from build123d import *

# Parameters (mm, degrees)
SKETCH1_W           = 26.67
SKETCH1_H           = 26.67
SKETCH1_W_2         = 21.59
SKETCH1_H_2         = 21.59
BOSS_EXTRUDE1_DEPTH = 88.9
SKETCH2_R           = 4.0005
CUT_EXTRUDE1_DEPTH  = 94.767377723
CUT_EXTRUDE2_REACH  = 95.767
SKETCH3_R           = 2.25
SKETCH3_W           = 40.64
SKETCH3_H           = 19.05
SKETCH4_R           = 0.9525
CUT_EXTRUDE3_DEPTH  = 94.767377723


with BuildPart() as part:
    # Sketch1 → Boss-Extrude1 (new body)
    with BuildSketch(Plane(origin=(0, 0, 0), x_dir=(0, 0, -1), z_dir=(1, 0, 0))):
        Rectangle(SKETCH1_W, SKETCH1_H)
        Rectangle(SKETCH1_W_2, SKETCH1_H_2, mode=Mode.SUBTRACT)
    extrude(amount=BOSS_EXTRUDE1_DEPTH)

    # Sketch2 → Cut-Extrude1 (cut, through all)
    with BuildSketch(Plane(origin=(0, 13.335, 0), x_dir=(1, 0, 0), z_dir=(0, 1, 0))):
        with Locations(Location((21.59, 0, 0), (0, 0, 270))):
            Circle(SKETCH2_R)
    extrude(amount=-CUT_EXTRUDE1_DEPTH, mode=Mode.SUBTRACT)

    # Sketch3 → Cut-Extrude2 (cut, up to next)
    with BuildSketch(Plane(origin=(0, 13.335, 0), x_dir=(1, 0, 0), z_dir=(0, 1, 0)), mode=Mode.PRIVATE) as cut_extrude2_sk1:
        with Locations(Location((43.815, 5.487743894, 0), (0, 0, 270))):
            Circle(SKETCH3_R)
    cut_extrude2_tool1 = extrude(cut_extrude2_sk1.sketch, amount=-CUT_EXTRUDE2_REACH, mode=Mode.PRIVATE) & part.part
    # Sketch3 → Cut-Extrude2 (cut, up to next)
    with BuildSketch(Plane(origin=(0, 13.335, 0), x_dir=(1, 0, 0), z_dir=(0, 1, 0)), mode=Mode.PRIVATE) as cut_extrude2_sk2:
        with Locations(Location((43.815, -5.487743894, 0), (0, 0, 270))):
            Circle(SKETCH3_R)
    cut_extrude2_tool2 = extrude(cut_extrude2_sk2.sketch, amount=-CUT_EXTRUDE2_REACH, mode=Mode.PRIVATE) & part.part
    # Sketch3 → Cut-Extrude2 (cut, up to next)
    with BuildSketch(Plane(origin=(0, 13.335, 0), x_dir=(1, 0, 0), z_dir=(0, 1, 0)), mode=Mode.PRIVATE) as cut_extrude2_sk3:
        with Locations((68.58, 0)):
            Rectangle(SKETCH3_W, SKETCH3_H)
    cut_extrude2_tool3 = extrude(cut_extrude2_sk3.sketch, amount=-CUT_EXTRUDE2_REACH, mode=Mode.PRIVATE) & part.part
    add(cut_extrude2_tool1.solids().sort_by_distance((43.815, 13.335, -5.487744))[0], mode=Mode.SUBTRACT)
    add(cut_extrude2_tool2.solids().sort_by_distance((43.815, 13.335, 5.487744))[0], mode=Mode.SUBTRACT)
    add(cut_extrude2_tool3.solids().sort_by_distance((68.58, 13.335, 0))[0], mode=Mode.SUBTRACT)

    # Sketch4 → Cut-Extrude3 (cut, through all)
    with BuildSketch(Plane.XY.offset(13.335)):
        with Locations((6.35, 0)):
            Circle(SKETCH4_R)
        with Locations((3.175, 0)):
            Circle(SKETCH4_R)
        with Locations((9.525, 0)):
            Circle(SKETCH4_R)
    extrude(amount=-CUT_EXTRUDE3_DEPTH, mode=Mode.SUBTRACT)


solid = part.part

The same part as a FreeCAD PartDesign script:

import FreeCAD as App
import Part
import Sketcher
Q = App.Units.Quantity

doc = App.newDocument("Part")
body = doc.addObject("PartDesign::Body", "Body")

# Sketch on YZ plane
sketch1 = body.newObject("Sketcher::SketchObject", "Sketch")
sketch1.AttachmentSupport = (doc.getObject("YZ_Plane"), [""])
sketch1.MapMode = "FlatFace"
sketch1.addGeometry(Part.LineSegment(App.Vector(13, 13, 0), App.Vector(-13, 13, 0)), False)
sketch1.addGeometry(Part.LineSegment(App.Vector(-13, 13, 0), App.Vector(-13, -13, 0)), False)
sketch1.addGeometry(Part.LineSegment(App.Vector(-13, -13, 0), App.Vector(13, -13, 0)), False)
sketch1.addGeometry(Part.LineSegment(App.Vector(13, -13, 0), App.Vector(13, 13, 0)), False)
sketch1.addGeometry(Part.LineSegment(App.Vector(-11, -11, 0), App.Vector(-11, 11, 0)), False)
sketch1.addGeometry(Part.LineSegment(App.Vector(-11, 11, 0), App.Vector(11, 11, 0)), False)
sketch1.addGeometry(Part.LineSegment(App.Vector(11, 11, 0), App.Vector(11, -11, 0)), False)
sketch1.addGeometry(Part.LineSegment(App.Vector(11, -11, 0), App.Vector(-11, -11, 0)), False)
sketch1.addConstraint(Sketcher.Constraint("Coincident", 0, 2, 1, 1))
sketch1.addConstraint(Sketcher.Constraint("Coincident", 1, 2, 2, 1))
sketch1.addConstraint(Sketcher.Constraint("Coincident", 2, 2, 3, 1))
sketch1.addConstraint(Sketcher.Constraint("Coincident", 3, 2, 0, 1))
sketch1.addConstraint(Sketcher.Constraint("Coincident", 4, 2, 5, 1))
sketch1.addConstraint(Sketcher.Constraint("Coincident", 5, 2, 6, 1))
sketch1.addConstraint(Sketcher.Constraint("Coincident", 6, 2, 7, 1))
sketch1.addConstraint(Sketcher.Constraint("Coincident", 7, 2, 4, 1))
sketch1.addConstraint(Sketcher.Constraint("Horizontal", 0))
sketch1.addConstraint(Sketcher.Constraint("Vertical", 1))
sketch1.addConstraint(Sketcher.Constraint("Horizontal", 2))
sketch1.addConstraint(Sketcher.Constraint("Vertical", 3))
sketch1.addConstraint(Sketcher.Constraint("Vertical", 4))
sketch1.addConstraint(Sketcher.Constraint("Horizontal", 5))
sketch1.addConstraint(Sketcher.Constraint("Vertical", 6))
sketch1.addConstraint(Sketcher.Constraint("Horizontal", 7))
sketch1.addConstraint(Sketcher.Constraint("Symmetric", 0, 2, 2, 2, -1, 1))
sketch1.addConstraint(Sketcher.Constraint("Symmetric", 4, 2, 6, 2, -1, 1))
sketch1.addConstraint(Sketcher.Constraint("Equal", 2, 1))
sketch1.addConstraint(Sketcher.Constraint("Equal", 7, 4))
sketch1.addConstraint(Sketcher.Constraint("DistanceX", 0, 2, 0, 1, Q("1.05 in")))
sketch1.addConstraint(Sketcher.Constraint("DistanceX", 5, 1, 5, 2, Q("0.85 in")))
pad1 = body.newObject("PartDesign::Pad", "Pad")
pad1.Profile = sketch1
pad1.Length = Q("3.5 in")

# Sketch on XZ plane
sketch2 = body.newObject("Sketcher::SketchObject", "Sketch001")
sketch2.AttachmentSupport = (doc.getObject("XZ_Plane"), [""])
sketch2.MapMode = "FlatFace"
sketch2.AttachmentOffset = App.Placement(App.Vector(0, 0, -0.525 * 25.4), App.Rotation())
sketch2.addGeometry(Part.Circle(App.Vector(21.6, 0, 0), App.Vector(0, 0, 1), 4), False)
sketch2.addConstraint(Sketcher.Constraint("PointOnObject", 0, 3, -1))
sketch2.addConstraint(Sketcher.Constraint("Diameter", 0, Q("0.315 in")))
sketch2.addConstraint(Sketcher.Constraint("DistanceX", -1, 1, 0, 3, Q("0.85 in")))
pocket1 = body.newObject("PartDesign::Pocket", "Pocket")
pocket1.Profile = sketch2
pocket1.Type = "ThroughAll"
pocket1.Reversed = True

# Sketch on XZ plane
sketch3 = body.newObject("Sketcher::SketchObject", "Sketch002")
sketch3.AttachmentSupport = (doc.getObject("XZ_Plane"), [""])
sketch3.MapMode = "FlatFace"
sketch3.AttachmentOffset = App.Placement(App.Vector(0, 0, -0.525 * 25.4), App.Rotation())
sketch3.addGeometry(Part.Circle(App.Vector(43.8, -5.5, 0), App.Vector(0, 0, 1), 2.2), False)
sketch3.addConstraint(Sketcher.Constraint("Diameter", 0, 4.5))
sketch3.addConstraint(Sketcher.Constraint("DistanceX", -1, 1, 0, 3, Q("1.725 in")))
sketch3.addConstraint(Sketcher.Constraint("DistanceY", 0, 3, -1, 1, 5.487744))
pocket2 = body.newObject("PartDesign::Pocket", "Pocket001")
pocket2.Profile = sketch3
pocket2.Type = "UpToFirst"
pocket2.Reversed = True

# Sketch on XZ plane
sketch4 = body.newObject("Sketcher::SketchObject", "Sketch003")
sketch4.AttachmentSupport = (doc.getObject("XZ_Plane"), [""])
sketch4.MapMode = "FlatFace"
sketch4.AttachmentOffset = App.Placement(App.Vector(0, 0, -0.525 * 25.4), App.Rotation())
sketch4.addGeometry(Part.Circle(App.Vector(43.8, 5.5, 0), App.Vector(0, 0, 1), 2.2), False)
sketch4.addConstraint(Sketcher.Constraint("Diameter", 0, 4.5))
sketch4.addConstraint(Sketcher.Constraint("DistanceX", -1, 1, 0, 3, Q("1.725 in")))
sketch4.addConstraint(Sketcher.Constraint("DistanceY", -1, 1, 0, 3, 5.487744))
pocket3 = body.newObject("PartDesign::Pocket", "Pocket002")
pocket3.Profile = sketch4
pocket3.Type = "UpToFirst"
pocket3.Reversed = True

# Sketch on XZ plane
sketch5 = body.newObject("Sketcher::SketchObject", "Sketch004")
sketch5.AttachmentSupport = (doc.getObject("XZ_Plane"), [""])
sketch5.MapMode = "FlatFace"
sketch5.AttachmentOffset = App.Placement(App.Vector(0, 0, -0.525 * 25.4), App.Rotation())
sketch5.addGeometry(Part.LineSegment(App.Vector(48, -10, 0), App.Vector(48, 10, 0)), False)
sketch5.addGeometry(Part.LineSegment(App.Vector(48, 10, 0), App.Vector(89, 10, 0)), False)
sketch5.addGeometry(Part.LineSegment(App.Vector(89, 10, 0), App.Vector(89, -10, 0)), False)
sketch5.addGeometry(Part.LineSegment(App.Vector(89, -10, 0), App.Vector(48, -10, 0)), False)
sketch5.addConstraint(Sketcher.Constraint("Coincident", 0, 2, 1, 1))
sketch5.addConstraint(Sketcher.Constraint("Coincident", 1, 2, 2, 1))
sketch5.addConstraint(Sketcher.Constraint("Coincident", 2, 2, 3, 1))
sketch5.addConstraint(Sketcher.Constraint("Coincident", 3, 2, 0, 1))
sketch5.addConstraint(Sketcher.Constraint("Vertical", 0))
sketch5.addConstraint(Sketcher.Constraint("Horizontal", 1))
sketch5.addConstraint(Sketcher.Constraint("Vertical", 2))
sketch5.addConstraint(Sketcher.Constraint("Horizontal", 3))
sketch5.addConstraint(Sketcher.Constraint("DistanceX", 1, 1, 1, 2, Q("1.6 in")))
sketch5.addConstraint(Sketcher.Constraint("DistanceY", 0, 1, 0, 2, Q("0.75 in")))
sketch5.addConstraint(Sketcher.Constraint("DistanceX", -1, 1, 0, 2, Q("1.9 in")))
sketch5.addConstraint(Sketcher.Constraint("DistanceY", -1, 1, 0, 2, Q("0.375 in")))
pocket4 = body.newObject("PartDesign::Pocket", "Pocket003")
pocket4.Profile = sketch5
pocket4.Type = "UpToFirst"
pocket4.Reversed = True

# Sketch on XY plane
sketch6 = body.newObject("Sketcher::SketchObject", "Sketch005")
sketch6.AttachmentSupport = (doc.getObject("XY_Plane"), [""])
sketch6.MapMode = "FlatFace"
sketch6.AttachmentOffset = App.Placement(App.Vector(0, 0, 0.525 * 25.4), App.Rotation())
sketch6.addGeometry(Part.Circle(App.Vector(6.3, 0, 0), App.Vector(0, 0, 1), 1), False)
sketch6.addGeometry(Part.Circle(App.Vector(3.2, 0, 0), App.Vector(0, 0, 1), 1), False)
sketch6.addGeometry(Part.Circle(App.Vector(9.5, 0, 0), App.Vector(0, 0, 1), 1), False)
sketch6.addConstraint(Sketcher.Constraint("Equal", 0, 1))
sketch6.addConstraint(Sketcher.Constraint("Equal", 1, 2))
sketch6.addConstraint(Sketcher.Constraint("PointOnObject", 0, 3, -1))
sketch6.addConstraint(Sketcher.Constraint("PointOnObject", 1, 3, -1))
sketch6.addConstraint(Sketcher.Constraint("PointOnObject", 2, 3, -1))
sketch6.addConstraint(Sketcher.Constraint("Diameter", 0, Q("0.075 in")))
sketch6.addConstraint(Sketcher.Constraint("DistanceX", -1, 1, 0, 3, Q("0.25 in")))
sketch6.addConstraint(Sketcher.Constraint("DistanceX", 1, 3, 2, 3, Q("0.25 in")))
sketch6.addConstraint(Sketcher.Constraint("DistanceX", -1, 1, 1, 3, Q("0.125 in")))
pocket5 = body.newObject("PartDesign::Pocket", "Pocket004")
pocket5.Profile = sketch6
pocket5.Type = "ThroughAll"

doc.recompute()
